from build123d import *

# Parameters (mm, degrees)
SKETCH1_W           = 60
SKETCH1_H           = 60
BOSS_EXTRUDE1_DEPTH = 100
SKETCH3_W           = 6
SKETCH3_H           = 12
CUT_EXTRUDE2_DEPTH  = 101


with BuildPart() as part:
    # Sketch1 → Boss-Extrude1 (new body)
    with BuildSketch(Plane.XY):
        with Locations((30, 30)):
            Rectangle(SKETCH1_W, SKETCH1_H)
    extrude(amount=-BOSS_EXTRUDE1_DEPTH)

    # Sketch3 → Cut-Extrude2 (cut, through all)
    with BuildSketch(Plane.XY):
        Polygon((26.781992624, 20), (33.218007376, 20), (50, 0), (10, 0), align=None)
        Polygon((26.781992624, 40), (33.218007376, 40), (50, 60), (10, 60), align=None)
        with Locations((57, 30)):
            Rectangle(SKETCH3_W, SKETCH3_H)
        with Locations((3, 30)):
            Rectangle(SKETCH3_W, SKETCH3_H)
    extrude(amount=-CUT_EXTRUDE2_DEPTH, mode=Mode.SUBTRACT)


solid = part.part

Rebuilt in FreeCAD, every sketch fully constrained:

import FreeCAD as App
import Part
import Sketcher
from FreeCAD import Vector
Q = App.Units.Quantity


def add_polygon(sketch, points):
    """Adds a closed chain of lines whose ends are joined by coincident constraints."""
    first, n = sketch.GeometryCount, len(points)
    for a, b in zip(points, points[1:] + points[:1]):
        sketch.addGeometry(Part.LineSegment(App.Vector(*a, 0), App.Vector(*b, 0)), False)
    for i in range(n):
        sketch.addConstraint(Sketcher.Constraint("Coincident", first + i, 2, first + (i + 1) % n, 1))

doc = App.newDocument("Part")
body = doc.addObject("PartDesign::Body", "Body")

# Sketch on XY plane
sketch1 = doc.addObject("Sketcher::SketchObject", "Sketch")
body.addObject(sketch1)
sketch1.AttachmentSupport = (doc.XY_Plane, [""])
sketch1.MapMode = "FlatFace"
add_polygon(sketch1, [(0, 60), (0, 0), (60, 0), (60, 60)])  # lines 0-3
sketch1.addConstraint(Sketcher.Constraint("Vertical", 0))
sketch1.addConstraint(Sketcher.Constraint("Horizontal", 1))
sketch1.addConstraint(Sketcher.Constraint("Vertical", 2))
sketch1.addConstraint(Sketcher.Constraint("Horizontal", 3))
sketch1.addConstraint(Sketcher.Constraint("Coincident", 0, 2, -1, 1))
sketch1.addConstraint(Sketcher.Constraint("Equal", 3, 0))
sketch1.addConstraint(Sketcher.Constraint("DistanceX", 1, 1, 1, 2, Q("60 mm")))
pad1 = doc.addObject("PartDesign::Pad", "Pad")
body.addObject(pad1)
pad1.Profile = sketch1
pad1.Length = 100
pad1.Reversed = True

# Sketch on XY plane
sketch2 = doc.addObject("Sketcher::SketchObject", "Sketch001")
body.addObject(sketch2)
sketch2.AttachmentSupport = (doc.XY_Plane, [""])
sketch2.MapMode = "FlatFace"
add_polygon(sketch2, [(33.218007, 20), (26.781993, 20), (10, 0), (50, 0)])  # lines 0-3
add_polygon(sketch2, [(26.781993, 40), (33.218007, 40), (50, 60), (10, 60)])  # lines 4-7
add_polygon(sketch2, [(54, 36), (54, 24), (60, 24), (60, 36)])  # lines 8-11
add_polygon(sketch2, [(0, 36), (0, 24), (6, 24), (6, 36)])  # lines 12-15
sketch2.addConstraint(Sketcher.Constraint("Horizontal", 0))
sketch2.addConstraint(Sketcher.Constraint("Horizontal", 2))
sketch2.addConstraint(Sketcher.Constraint("Horizontal", 4))
sketch2.addConstraint(Sketcher.Constraint("Horizontal", 6))
sketch2.addConstraint(Sketcher.Constraint("Vertical", 8))
sketch2.addConstraint(Sketcher.Constraint("Horizontal", 9))
sketch2.addConstraint(Sketcher.Constraint("Vertical", 10))
sketch2.addConstraint(Sketcher.Constraint("Horizontal", 11))
sketch2.addConstraint(Sketcher.Constraint("Vertical", 12))
sketch2.addConstraint(Sketcher.Constraint("Horizontal", 13))
sketch2.addConstraint(Sketcher.Constraint("Vertical", 14))
sketch2.addConstraint(Sketcher.Constraint("Horizontal", 15))
sketch2.addConstraint(Sketcher.Constraint("PointOnObject", 1, 2, -1))
sketch2.addConstraint(Sketcher.Constraint("PointOnObject", 12, 2, -2))
sketch2.addConstraint(Sketcher.Constraint("Parallel", 1, 5))
sketch2.addConstraint(Sketcher.Constraint("Parallel", 3, 7))
sketch2.addConstraint(Sketcher.Constraint("Horizontal", 9, 2, 12, 2))
sketch2.addConstraint(Sketcher.Constraint("Horizontal", 11, 2, 14, 2))
sketch2.addConstraint(Sketcher.Constraint("Vertical", 3, 2, 4, 2))
sketch2.addConstraint(Sketcher.Constraint("Vertical", 2, 2, 5, 2))
sketch2.addConstraint(Sketcher.Constraint("Vertical", 1, 2, 6, 2))
sketch2.addConstraint(Sketcher.Constraint("Vertical", 0, 2, 7, 2))
sketch2.addConstraint(Sketcher.Constraint("Equal", 11, 13))
sketch2.addConstraint(Sketcher.Constraint("DistanceX", 2, 1, 2, 2, Q("40 mm")))
sketch2.addConstraint(Sketcher.Constraint("DistanceX", 9, 1, 9, 2, Q("6 mm")))
sketch2.addConstraint(Sketcher.Constraint("DistanceY", 8, 2, 8, 1, Q("12 mm")))
sketch2.addConstraint(Sketcher.Constraint("Angle", 1, Q("-130 deg")))
sketch2.addConstraint(Sketcher.Constraint("DistanceY", -1, 1, 0, 2, Q("20 mm")))
sketch2.addConstraint(Sketcher.Constraint("DistanceX", -1, 1, 1, 2, Q("10 mm")))
sketch2.addConstraint(Sketcher.Constraint("DistanceY", -1, 1, 4, 2, Q("40 mm")))
sketch2.addConstraint(Sketcher.Constraint("DistanceX", -1, 1, 8, 2, Q("54 mm")))
sketch2.addConstraint(Sketcher.Constraint("DistanceY", -1, 1, 8, 2, Q("24 mm")))
pocket1 = doc.addObject("PartDesign::Pocket", "Pocket")
body.addObject(pocket1)
pocket1.Profile = sketch2
pocket1.Type = "ThroughAll"

doc.recompute()
